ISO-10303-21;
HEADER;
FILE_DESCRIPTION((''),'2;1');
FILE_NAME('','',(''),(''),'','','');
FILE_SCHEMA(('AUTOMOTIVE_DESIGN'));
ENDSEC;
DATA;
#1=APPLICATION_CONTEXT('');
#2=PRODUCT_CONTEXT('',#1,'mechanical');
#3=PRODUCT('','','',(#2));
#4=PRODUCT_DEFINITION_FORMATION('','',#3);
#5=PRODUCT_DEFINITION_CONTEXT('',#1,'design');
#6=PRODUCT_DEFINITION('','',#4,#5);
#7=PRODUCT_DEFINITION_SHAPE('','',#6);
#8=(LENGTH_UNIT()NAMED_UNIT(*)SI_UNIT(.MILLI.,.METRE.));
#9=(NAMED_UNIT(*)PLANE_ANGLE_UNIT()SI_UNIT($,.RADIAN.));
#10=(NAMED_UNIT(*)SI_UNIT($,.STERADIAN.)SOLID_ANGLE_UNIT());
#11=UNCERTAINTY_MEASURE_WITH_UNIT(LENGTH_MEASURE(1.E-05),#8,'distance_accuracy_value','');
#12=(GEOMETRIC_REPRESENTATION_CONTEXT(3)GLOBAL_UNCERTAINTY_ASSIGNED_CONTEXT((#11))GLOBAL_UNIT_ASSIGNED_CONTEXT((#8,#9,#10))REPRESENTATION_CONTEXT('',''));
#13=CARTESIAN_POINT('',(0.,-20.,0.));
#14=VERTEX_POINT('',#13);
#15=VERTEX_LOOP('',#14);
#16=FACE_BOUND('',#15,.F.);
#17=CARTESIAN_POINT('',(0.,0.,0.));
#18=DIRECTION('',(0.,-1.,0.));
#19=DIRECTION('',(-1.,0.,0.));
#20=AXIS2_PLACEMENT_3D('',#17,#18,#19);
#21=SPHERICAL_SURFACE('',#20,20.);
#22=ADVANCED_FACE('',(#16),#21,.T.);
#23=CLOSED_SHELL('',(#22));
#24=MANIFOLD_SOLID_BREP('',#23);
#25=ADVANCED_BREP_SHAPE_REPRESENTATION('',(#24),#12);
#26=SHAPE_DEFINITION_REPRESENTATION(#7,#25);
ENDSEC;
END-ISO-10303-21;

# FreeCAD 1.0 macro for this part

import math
import FreeCAD as App
import Part
import Sketcher
from FreeCAD import Vector

doc = App.newDocument("Part")
body = doc.addObject("PartDesign::Body", "Body")

sketch1 = body.newObject("Sketcher::SketchObject", "Sketch")
sketch1.AttachmentSupport = (doc.getObject("XY_Plane"), [""])
sketch1.MapMode = "FlatFace"
sketch1.addGeometry([
    Part.LineSegment(Vector(0, -20, 0), Vector(0, 20, 0)),
    Part.ArcOfCircle(Part.Circle(Vector(0, 0, 0), Vector(0, 0, 1), 20), math.radians(90), math.radians(270)),
], False)
sketch1.addConstraint([
    Sketcher.Constraint("Coincident", 0, 1, 1, 2),
    Sketcher.Constraint("Coincident", 1, 1, 0, 2),
    Sketcher.Constraint("Vertical", 0),
    Sketcher.Constraint("Coincident", 1, 3, -1, 1),
    Sketcher.Constraint("PointOnObject", 0, 1, -2),
    Sketcher.Constraint("Radius", 1, 20.0),
])
revolution = body.newObject("PartDesign::Revolution", "Revolution")
revolution.Profile = sketch1
revolution.ReferenceAxis = (sketch1, ["V_Axis"])
revolution.Angle = 360

doc.recompute()
